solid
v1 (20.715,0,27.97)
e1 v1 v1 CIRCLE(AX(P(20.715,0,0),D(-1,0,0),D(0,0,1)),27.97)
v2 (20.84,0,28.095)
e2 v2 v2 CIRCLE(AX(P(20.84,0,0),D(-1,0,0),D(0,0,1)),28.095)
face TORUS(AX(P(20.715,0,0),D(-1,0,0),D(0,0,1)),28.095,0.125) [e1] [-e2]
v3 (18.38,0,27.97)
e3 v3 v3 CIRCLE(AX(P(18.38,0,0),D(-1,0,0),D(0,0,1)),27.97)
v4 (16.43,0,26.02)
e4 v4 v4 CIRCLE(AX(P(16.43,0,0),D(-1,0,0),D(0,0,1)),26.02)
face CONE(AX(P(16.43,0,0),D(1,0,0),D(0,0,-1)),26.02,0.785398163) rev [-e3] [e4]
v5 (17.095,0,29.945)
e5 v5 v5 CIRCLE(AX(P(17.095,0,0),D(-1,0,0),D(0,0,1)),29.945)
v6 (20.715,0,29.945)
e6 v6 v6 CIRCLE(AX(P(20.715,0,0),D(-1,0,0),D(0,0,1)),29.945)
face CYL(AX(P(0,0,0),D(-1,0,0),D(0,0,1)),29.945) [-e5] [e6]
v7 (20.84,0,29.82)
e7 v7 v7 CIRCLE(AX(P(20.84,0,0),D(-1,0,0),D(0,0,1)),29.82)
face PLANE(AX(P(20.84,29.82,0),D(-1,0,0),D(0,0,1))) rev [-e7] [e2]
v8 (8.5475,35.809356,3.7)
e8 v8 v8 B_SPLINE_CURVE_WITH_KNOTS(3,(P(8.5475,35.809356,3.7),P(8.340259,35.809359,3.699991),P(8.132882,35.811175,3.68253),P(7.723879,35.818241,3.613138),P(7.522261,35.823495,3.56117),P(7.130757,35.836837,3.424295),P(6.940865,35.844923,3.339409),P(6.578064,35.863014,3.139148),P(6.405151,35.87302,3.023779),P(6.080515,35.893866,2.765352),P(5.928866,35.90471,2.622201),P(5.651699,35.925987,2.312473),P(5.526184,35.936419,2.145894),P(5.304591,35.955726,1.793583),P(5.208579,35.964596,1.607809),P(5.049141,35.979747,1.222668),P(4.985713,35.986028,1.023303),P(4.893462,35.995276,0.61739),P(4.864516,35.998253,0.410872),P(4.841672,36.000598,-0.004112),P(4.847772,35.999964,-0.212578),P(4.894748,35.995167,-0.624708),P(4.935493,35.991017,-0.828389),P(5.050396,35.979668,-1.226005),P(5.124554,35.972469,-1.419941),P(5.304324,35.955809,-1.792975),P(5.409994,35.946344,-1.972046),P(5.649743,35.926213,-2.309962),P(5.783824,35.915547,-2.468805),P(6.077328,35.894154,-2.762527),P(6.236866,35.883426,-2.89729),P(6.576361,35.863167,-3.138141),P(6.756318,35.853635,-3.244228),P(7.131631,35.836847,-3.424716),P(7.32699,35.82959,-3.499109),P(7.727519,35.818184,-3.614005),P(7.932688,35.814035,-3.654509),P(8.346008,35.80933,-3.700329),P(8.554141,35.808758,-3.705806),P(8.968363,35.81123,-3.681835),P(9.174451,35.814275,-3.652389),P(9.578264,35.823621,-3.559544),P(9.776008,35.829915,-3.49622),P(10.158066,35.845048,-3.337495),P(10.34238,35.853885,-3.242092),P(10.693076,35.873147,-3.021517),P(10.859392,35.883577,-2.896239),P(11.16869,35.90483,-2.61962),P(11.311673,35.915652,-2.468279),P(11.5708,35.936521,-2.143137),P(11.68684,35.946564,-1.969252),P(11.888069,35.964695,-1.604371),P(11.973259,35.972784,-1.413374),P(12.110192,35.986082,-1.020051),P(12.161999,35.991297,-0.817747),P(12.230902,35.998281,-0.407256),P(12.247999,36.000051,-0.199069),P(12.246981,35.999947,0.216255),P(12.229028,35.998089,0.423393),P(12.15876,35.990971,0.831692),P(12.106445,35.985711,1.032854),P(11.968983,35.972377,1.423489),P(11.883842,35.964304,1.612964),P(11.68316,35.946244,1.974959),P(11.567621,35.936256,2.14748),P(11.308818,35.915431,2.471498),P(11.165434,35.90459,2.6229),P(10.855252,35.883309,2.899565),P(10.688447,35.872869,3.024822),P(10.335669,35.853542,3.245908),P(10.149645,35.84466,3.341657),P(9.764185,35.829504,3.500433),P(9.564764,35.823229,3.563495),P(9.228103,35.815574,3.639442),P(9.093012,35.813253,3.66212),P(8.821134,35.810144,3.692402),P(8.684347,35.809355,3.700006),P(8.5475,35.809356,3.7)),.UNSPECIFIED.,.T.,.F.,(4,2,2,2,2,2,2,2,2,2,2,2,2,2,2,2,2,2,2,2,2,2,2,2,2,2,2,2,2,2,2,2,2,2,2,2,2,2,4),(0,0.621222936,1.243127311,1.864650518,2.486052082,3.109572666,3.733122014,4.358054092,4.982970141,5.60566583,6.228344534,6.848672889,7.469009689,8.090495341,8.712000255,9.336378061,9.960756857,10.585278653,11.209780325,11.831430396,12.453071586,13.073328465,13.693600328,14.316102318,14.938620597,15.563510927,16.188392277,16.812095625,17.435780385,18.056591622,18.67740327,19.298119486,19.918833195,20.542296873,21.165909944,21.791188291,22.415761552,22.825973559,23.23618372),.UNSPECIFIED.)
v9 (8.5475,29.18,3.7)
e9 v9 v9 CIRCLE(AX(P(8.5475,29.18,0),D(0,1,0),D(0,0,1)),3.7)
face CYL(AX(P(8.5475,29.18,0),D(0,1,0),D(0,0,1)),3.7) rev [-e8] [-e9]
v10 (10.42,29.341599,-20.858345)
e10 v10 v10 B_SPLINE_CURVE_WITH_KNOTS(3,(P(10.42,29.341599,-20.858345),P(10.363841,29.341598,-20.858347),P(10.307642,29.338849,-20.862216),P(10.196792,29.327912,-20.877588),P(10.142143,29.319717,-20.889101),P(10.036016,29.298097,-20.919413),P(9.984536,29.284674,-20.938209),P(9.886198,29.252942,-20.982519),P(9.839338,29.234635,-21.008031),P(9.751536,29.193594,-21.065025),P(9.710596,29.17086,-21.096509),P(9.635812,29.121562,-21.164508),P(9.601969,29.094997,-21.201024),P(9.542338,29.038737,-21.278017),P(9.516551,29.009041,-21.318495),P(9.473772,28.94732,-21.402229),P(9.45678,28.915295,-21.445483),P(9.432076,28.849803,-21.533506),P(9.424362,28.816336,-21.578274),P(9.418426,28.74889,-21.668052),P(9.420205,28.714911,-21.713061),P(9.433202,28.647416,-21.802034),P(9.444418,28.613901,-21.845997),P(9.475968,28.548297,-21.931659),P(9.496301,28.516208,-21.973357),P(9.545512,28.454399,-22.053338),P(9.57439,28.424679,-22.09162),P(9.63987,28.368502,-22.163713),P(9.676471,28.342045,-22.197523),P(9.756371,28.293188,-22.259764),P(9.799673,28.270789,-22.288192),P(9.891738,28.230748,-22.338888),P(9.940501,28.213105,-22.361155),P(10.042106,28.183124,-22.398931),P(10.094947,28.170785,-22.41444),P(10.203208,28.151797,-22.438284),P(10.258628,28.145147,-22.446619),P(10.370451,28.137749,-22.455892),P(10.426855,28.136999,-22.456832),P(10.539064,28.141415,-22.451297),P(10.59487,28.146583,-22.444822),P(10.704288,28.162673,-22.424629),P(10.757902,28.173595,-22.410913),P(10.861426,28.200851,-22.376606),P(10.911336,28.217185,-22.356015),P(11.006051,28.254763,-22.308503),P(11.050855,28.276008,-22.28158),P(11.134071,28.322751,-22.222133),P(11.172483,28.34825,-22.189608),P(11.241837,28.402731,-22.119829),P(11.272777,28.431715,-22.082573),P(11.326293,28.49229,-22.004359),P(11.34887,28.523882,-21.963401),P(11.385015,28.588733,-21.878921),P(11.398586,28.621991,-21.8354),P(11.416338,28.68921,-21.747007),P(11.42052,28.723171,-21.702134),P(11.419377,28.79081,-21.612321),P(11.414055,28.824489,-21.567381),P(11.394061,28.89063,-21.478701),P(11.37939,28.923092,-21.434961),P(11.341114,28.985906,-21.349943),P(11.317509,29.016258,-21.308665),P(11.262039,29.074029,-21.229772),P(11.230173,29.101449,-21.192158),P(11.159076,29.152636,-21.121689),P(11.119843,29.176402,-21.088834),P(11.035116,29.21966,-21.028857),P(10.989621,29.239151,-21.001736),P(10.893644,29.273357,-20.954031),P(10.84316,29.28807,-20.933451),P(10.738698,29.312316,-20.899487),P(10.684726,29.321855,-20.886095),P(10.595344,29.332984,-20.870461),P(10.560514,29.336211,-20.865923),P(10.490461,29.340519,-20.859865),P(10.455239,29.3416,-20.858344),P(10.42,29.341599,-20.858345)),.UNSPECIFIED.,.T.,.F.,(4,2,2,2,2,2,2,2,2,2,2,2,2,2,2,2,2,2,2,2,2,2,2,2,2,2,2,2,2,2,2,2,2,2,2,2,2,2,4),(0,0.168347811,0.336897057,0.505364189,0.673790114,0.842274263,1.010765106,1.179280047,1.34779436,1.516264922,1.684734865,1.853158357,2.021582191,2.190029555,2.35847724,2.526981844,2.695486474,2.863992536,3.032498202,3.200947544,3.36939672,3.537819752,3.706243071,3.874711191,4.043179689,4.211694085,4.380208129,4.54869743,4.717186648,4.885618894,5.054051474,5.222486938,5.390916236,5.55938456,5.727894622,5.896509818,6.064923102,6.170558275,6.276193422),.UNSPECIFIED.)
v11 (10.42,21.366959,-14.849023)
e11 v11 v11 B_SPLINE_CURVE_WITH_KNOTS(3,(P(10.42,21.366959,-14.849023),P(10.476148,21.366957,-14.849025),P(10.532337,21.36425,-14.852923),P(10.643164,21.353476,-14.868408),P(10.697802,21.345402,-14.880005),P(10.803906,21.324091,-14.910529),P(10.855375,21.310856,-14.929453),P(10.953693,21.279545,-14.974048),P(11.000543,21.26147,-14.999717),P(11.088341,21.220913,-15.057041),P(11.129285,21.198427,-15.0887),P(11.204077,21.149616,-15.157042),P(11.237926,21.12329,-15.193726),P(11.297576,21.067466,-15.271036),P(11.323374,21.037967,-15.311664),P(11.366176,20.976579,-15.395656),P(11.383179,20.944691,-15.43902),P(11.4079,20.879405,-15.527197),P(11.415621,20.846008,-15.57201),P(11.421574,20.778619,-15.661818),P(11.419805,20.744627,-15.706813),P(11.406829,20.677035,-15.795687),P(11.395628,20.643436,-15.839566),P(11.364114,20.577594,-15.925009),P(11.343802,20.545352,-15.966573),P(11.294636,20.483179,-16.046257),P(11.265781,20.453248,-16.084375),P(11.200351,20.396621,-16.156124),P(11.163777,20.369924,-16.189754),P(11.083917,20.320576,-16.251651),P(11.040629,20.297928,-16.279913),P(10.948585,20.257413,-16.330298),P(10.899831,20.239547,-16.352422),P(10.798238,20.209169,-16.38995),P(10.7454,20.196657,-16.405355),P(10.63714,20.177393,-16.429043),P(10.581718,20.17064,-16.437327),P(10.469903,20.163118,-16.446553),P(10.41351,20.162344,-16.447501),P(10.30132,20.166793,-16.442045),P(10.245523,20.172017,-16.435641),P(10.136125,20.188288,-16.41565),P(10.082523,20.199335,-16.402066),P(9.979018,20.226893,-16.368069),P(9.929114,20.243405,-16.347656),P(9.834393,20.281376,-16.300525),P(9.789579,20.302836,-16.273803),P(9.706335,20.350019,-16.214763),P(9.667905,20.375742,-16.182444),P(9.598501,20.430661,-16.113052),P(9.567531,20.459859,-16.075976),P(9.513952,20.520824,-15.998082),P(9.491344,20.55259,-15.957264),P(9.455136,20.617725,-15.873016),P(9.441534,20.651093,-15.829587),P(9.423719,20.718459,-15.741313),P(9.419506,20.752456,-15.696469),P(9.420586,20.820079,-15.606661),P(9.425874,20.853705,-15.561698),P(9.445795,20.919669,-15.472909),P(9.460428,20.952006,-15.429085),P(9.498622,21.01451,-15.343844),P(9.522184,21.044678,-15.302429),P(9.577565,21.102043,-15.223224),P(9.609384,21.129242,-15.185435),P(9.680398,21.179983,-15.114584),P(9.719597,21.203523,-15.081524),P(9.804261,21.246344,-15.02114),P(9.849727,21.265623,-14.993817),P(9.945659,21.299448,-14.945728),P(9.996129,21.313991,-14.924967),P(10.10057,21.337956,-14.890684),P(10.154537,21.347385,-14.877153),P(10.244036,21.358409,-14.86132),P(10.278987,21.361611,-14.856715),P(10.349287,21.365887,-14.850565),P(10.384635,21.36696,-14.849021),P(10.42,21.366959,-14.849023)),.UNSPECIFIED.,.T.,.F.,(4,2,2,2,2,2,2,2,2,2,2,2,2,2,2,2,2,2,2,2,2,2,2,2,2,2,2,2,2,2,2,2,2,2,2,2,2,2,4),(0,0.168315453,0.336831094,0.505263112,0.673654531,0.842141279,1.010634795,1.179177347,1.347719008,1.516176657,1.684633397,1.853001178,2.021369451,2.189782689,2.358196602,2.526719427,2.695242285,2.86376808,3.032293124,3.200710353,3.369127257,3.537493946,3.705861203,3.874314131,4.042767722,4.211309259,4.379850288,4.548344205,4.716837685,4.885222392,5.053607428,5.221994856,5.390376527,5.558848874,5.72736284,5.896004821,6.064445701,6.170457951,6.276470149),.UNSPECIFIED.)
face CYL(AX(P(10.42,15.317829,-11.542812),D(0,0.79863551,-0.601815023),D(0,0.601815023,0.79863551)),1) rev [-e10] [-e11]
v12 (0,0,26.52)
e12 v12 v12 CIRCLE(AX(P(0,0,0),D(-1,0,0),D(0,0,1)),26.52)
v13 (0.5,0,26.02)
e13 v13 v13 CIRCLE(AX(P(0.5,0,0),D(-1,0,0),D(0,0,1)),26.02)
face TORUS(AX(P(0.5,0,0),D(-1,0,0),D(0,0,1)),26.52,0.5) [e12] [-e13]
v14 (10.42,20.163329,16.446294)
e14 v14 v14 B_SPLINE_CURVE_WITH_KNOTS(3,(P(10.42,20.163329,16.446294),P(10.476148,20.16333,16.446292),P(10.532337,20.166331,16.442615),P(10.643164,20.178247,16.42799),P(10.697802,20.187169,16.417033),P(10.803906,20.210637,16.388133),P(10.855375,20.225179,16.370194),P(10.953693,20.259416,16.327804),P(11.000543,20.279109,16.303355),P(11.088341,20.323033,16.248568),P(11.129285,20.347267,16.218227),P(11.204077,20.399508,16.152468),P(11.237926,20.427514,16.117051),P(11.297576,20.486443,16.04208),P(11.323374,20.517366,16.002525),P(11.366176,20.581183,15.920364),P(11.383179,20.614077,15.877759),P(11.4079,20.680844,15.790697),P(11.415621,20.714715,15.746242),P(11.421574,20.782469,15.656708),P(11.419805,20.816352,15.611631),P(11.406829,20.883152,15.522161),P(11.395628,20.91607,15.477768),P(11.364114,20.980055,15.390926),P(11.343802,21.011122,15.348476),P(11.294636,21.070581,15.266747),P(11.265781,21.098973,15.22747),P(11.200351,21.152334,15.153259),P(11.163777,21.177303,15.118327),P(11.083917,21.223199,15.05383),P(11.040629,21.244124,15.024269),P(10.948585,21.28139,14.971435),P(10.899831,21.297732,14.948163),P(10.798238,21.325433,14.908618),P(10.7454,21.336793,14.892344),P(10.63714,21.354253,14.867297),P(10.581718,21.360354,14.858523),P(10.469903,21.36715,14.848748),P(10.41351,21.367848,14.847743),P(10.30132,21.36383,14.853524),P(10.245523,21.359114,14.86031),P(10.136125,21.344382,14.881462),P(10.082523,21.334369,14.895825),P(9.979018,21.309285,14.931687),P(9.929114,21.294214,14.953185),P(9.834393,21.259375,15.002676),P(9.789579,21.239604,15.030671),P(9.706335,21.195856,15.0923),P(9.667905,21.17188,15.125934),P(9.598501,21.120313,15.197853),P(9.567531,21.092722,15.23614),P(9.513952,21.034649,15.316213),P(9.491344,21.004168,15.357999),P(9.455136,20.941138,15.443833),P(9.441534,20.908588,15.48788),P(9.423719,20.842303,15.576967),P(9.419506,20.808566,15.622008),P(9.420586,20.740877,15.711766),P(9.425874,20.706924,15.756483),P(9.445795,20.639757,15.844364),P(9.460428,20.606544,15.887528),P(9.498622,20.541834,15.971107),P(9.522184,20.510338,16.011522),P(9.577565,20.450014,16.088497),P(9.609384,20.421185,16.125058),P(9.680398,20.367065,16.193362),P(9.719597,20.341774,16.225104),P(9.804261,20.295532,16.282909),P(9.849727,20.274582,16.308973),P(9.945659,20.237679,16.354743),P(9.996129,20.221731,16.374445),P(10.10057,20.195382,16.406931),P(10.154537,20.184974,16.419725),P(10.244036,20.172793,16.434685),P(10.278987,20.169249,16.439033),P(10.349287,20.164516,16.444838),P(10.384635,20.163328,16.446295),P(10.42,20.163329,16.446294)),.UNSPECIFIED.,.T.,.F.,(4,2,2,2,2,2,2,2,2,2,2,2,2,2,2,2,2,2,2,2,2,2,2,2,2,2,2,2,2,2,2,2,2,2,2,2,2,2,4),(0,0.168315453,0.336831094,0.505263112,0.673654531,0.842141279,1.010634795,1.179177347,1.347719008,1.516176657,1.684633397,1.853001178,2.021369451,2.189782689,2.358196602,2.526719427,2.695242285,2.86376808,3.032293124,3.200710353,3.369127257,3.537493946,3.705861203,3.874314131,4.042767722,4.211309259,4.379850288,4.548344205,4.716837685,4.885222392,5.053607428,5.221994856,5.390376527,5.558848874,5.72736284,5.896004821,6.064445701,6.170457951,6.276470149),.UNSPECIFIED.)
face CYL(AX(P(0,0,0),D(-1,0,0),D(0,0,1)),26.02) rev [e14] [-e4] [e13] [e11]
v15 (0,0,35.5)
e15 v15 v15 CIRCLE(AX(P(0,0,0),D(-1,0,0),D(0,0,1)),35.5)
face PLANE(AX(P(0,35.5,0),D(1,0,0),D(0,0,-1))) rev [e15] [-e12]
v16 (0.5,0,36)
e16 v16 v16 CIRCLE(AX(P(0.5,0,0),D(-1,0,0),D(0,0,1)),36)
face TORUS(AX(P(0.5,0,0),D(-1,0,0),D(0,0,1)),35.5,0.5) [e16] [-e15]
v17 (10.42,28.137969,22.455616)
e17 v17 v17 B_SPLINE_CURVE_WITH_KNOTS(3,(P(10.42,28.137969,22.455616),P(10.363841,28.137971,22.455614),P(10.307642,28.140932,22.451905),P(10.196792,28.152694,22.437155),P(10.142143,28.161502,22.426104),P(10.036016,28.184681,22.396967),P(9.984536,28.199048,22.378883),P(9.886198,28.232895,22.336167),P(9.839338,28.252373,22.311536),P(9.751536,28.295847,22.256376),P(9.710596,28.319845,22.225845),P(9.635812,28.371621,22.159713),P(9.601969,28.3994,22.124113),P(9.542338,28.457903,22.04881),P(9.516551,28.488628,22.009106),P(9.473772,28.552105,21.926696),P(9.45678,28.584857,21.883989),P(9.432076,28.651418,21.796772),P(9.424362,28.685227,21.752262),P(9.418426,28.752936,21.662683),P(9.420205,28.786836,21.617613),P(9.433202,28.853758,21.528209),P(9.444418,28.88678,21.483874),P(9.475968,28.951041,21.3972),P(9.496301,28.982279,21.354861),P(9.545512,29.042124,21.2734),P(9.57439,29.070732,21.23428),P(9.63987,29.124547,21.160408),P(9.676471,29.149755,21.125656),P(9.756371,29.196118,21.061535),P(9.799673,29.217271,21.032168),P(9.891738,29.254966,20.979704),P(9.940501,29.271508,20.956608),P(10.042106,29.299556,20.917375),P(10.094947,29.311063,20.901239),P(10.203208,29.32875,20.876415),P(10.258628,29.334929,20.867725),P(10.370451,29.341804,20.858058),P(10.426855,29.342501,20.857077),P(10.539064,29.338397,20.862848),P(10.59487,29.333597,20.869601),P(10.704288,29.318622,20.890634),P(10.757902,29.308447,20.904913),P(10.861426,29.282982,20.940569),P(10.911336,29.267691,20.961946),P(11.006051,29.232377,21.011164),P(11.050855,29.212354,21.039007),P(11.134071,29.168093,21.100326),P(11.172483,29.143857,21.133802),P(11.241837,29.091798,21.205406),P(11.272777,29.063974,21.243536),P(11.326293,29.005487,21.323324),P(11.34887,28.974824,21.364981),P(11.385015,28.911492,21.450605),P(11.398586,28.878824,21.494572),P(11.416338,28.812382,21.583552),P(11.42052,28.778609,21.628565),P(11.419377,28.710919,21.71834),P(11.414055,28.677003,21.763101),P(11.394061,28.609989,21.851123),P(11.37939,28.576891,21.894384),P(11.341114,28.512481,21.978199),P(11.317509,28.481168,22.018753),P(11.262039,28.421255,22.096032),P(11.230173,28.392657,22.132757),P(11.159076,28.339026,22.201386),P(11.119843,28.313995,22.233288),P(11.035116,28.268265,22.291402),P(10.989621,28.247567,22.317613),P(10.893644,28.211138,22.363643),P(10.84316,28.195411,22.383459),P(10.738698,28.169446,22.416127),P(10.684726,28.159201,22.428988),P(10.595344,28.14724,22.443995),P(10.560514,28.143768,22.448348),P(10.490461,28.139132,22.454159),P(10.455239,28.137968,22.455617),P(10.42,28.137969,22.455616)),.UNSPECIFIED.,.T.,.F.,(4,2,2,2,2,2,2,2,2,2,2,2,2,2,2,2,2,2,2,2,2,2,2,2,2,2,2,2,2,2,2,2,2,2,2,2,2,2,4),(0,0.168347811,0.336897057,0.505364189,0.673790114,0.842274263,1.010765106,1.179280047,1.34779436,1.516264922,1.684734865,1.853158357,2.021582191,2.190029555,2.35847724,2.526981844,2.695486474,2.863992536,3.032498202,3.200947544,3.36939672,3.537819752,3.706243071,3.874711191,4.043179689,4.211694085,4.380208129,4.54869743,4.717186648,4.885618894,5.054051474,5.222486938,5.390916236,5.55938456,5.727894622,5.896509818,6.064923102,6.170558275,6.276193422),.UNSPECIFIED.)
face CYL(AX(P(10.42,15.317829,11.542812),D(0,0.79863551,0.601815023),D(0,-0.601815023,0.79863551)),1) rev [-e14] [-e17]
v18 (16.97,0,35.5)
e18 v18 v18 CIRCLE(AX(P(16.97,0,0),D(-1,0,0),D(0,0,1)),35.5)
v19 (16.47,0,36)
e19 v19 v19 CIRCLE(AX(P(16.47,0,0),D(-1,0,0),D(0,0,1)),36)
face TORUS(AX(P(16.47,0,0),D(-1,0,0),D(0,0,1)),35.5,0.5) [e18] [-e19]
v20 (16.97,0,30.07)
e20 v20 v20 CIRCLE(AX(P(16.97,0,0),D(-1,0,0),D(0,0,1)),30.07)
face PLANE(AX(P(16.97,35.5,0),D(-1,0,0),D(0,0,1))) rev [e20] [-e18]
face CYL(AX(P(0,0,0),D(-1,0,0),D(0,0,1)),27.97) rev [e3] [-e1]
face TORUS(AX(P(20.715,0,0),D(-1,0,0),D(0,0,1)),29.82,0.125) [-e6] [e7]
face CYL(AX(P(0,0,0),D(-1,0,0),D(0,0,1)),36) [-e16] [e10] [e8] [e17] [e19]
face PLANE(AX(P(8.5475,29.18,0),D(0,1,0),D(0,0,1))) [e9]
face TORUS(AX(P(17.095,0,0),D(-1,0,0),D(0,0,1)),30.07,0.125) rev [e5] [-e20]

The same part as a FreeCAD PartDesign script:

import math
import FreeCAD as App
import Part
import Sketcher
from FreeCAD import Vector
Q = App.Units.Quantity

doc = App.newDocument("Part")
body = doc.addObject("PartDesign::Body", "Body")

# Sketch on XY plane
sketch1 = doc.addObject("Sketcher::SketchObject", "Sketch")
body.addObject(sketch1)
sketch1.AttachmentSupport = (doc.XY_Plane, [""])
sketch1.MapMode = "FlatFace"
sketch1.addGeometry([
    Part.LineSegment(Vector(16.43, 26.02, 0), Vector(18.38, 27.97, 0)),  # 0
    Part.LineSegment(Vector(18.38, 27.97, 0), Vector(20.71, 27.97, 0)),  # 1
    Part.ArcOfCircle(Part.Circle(Vector(20.72, 28.09, 0), Vector(0, 0, 1), 0.12), math.radians(-90), math.radians(0)),  # 2
    Part.LineSegment(Vector(20.84, 28.09, 0), Vector(20.84, 29.82, 0)),  # 3
    Part.ArcOfCircle(Part.Circle(Vector(20.72, 29.82, 0), Vector(0, 0, 1), 0.12), math.radians(0), math.radians(90)),  # 4
    Part.LineSegment(Vector(20.71, 29.95, 0), Vector(17.09, 29.95, 0)),  # 5
    Part.ArcOfCircle(Part.Circle(Vector(17.09, 30.07, 0), Vector(0, 0, 1), 0.12), math.radians(180), math.radians(270)),  # 6
    Part.LineSegment(Vector(16.97, 30.07, 0), Vector(16.97, 35.5, 0)),  # 7
    Part.ArcOfCircle(Part.Circle(Vector(16.47, 35.5, 0), Vector(0, 0, 1), 0.5), math.radians(0), math.radians(90)),  # 8
    Part.LineSegment(Vector(16.47, 36, 0), Vector(0.5, 36, 0)),  # 9
    Part.ArcOfCircle(Part.Circle(Vector(0.5, 35.5, 0), Vector(0, 0, 1), 0.5), math.radians(90), math.radians(180)),  # 10
    Part.LineSegment(Vector(0, 35.5, 0), Vector(0, 26.52, 0)),  # 11
    Part.ArcOfCircle(Part.Circle(Vector(0.5, 26.52, 0), Vector(0, 0, 1), 0.5), math.radians(180), math.radians(270)),  # 12
    Part.LineSegment(Vector(0.5, 26.02, 0), Vector(16.43, 26.02, 0)),  # 13
], False)
sketch1.addConstraint([
    Sketcher.Constraint("Coincident", 0, 2, 1, 1),
    Sketcher.Constraint("Tangent", 1, 2, 2, 1),
    Sketcher.Constraint("Tangent", 2, 2, 3, 1),
    Sketcher.Constraint("Tangent", 3, 2, 4, 1),
    Sketcher.Constraint("Tangent", 4, 2, 5, 1),
    Sketcher.Constraint("Tangent", 5, 2, 6, 2),
    Sketcher.Constraint("Tangent", 6, 1, 7, 1),
    Sketcher.Constraint("Tangent", 7, 2, 8, 1),
    Sketcher.Constraint("Tangent", 8, 2, 9, 1),
    Sketcher.Constraint("Tangent", 9, 2, 10, 1),
    Sketcher.Constraint("Tangent", 10, 2, 11, 1),
    Sketcher.Constraint("Tangent", 11, 2, 12, 1),
    Sketcher.Constraint("Tangent", 12, 2, 13, 1),
    Sketcher.Constraint("Coincident", 13, 2, 0, 1),
    Sketcher.Constraint("Horizontal", 1),
    Sketcher.Constraint("Vertical", 3),
    Sketcher.Constraint("Horizontal", 5),
    Sketcher.Constraint("Vertical", 7),
    Sketcher.Constraint("Horizontal", 9),
    Sketcher.Constraint("Vertical", 11),
    Sketcher.Constraint("Horizontal", 13),
    Sketcher.Constraint("Equal", 2, 4),
    Sketcher.Constraint("Equal", 4, 6),
    Sketcher.Constraint("Equal", 8, 10),
    Sketcher.Constraint("Equal", 10, 12),
    Sketcher.Constraint("PointOnObject", 10, 2, -2),
    Sketcher.Constraint("Radius", 8, Q("0.5 mm")),
    Sketcher.Constraint("Angle", 0, Q("45 deg")),
    Sketcher.Constraint("DistanceY", -1, 1, 8, 2, Q("36 mm")),
    Sketcher.Constraint("Radius", 2, Q("0.125 mm")),
    Sketcher.Constraint("DistanceX", 5, 2, 5, 1, Q("3.62 mm")),
    Sketcher.Constraint("DistanceX", 9, 2, 9, 1, Q("15.97 mm")),
    Sketcher.Constraint("DistanceX", 13, 1, 13, 2, Q("15.93 mm")),
    Sketcher.Constraint("DistanceY", 7, 1, 7, 2, Q("5.43 mm")),
    Sketcher.Constraint("DistanceY", 11, 2, 11, 1, Q("8.98 mm")),
    Sketcher.Constraint("DistanceY", 0, 2, 6, 3, Q("2.1 mm")),
])
revolution = doc.addObject("PartDesign::Revolution", "Revolution")
body.addObject(revolution)
revolution.Profile = sketch1
revolution.ReferenceAxis = (sketch1, ["H_Axis"])
revolution.Angle = 360

# Sketch on XZ plane
sketch2 = doc.addObject("Sketcher::SketchObject", "Sketch001")
body.addObject(sketch2)
sketch2.AttachmentSupport = (doc.XZ_Plane, [""])
sketch2.MapMode = "FlatFace"
sketch2.AttachmentOffset = App.Placement(Vector(0, 0, -36), App.Rotation())
sketch2.addGeometry(Part.Circle(Vector(8.5, 0, 0), Vector(0, 0, 1), 3.7), False)
sketch2.addConstraint([
    Sketcher.Constraint("PointOnObject", 0, 3, -1),
    Sketcher.Constraint("Diameter", 0, Q("7.4 mm")),
    Sketcher.Constraint("DistanceX", -1, 1, 0, 3, Q("8.5475 mm")),
])
pocket1 = doc.addObject("PartDesign::Pocket", "Pocket")
body.addObject(pocket1)
pocket1.Profile = sketch2
pocket1.Length = 6.82
pocket1.Reversed = True

# Sketch on an angled plane
sketch3 = doc.addObject("Sketcher::SketchObject", "Sketch002")
body.addObject(sketch3)
sketch3.Placement = App.Placement(Vector(0, 28.750878, 21.665341), App.Rotation(Vector(-1, 0, 0), Vector(0, -0.601815023, 0.79863551), Vector(0, 0.79863551, 0.601815023), "ZXY"))
sketch3.addGeometry(Part.Circle(Vector(-10.4, 0, 0), Vector(0, 0, 1), 1), False)
sketch3.addConstraint([
    Sketcher.Constraint("PointOnObject", 0, 3, -1),
    Sketcher.Constraint("Diameter", 0, Q("2 mm")),
    Sketcher.Constraint("DistanceX", 0, 3, -1, 1, Q("10.42 mm")),
])
pocket2 = doc.addObject("PartDesign::Pocket", "Pocket001")
body.addObject(pocket2)
pocket2.Profile = sketch3
pocket2.Length = 16.82

# Sketch on an angled plane
sketch4 = doc.addObject("Sketcher::SketchObject", "Sketch003")
body.addObject(sketch4)
sketch4.Placement = App.Placement(Vector(0, 28.750878, -21.665341), App.Rotation(Vector(-1, 0, 0), Vector(0, 0.601815023, 0.79863551), Vector(0, 0.79863551, -0.601815023), "ZXY"))
sketch4.addGeometry(Part.Circle(Vector(-10.4, 0, 0), Vector(0, 0, 1), 1), False)
sketch4.addConstraint([
    Sketcher.Constraint("PointOnObject", 0, 3, -1),
    Sketcher.Constraint("Diameter", 0, Q("2 mm")),
    Sketcher.Constraint("DistanceX", 0, 3, -1, 1, Q("10.42 mm")),
])
pocket3 = doc.addObject("PartDesign::Pocket", "Pocket002")
body.addObject(pocket3)
pocket3.Profile = sketch4
pocket3.Length = 16.82

doc.recompute()
